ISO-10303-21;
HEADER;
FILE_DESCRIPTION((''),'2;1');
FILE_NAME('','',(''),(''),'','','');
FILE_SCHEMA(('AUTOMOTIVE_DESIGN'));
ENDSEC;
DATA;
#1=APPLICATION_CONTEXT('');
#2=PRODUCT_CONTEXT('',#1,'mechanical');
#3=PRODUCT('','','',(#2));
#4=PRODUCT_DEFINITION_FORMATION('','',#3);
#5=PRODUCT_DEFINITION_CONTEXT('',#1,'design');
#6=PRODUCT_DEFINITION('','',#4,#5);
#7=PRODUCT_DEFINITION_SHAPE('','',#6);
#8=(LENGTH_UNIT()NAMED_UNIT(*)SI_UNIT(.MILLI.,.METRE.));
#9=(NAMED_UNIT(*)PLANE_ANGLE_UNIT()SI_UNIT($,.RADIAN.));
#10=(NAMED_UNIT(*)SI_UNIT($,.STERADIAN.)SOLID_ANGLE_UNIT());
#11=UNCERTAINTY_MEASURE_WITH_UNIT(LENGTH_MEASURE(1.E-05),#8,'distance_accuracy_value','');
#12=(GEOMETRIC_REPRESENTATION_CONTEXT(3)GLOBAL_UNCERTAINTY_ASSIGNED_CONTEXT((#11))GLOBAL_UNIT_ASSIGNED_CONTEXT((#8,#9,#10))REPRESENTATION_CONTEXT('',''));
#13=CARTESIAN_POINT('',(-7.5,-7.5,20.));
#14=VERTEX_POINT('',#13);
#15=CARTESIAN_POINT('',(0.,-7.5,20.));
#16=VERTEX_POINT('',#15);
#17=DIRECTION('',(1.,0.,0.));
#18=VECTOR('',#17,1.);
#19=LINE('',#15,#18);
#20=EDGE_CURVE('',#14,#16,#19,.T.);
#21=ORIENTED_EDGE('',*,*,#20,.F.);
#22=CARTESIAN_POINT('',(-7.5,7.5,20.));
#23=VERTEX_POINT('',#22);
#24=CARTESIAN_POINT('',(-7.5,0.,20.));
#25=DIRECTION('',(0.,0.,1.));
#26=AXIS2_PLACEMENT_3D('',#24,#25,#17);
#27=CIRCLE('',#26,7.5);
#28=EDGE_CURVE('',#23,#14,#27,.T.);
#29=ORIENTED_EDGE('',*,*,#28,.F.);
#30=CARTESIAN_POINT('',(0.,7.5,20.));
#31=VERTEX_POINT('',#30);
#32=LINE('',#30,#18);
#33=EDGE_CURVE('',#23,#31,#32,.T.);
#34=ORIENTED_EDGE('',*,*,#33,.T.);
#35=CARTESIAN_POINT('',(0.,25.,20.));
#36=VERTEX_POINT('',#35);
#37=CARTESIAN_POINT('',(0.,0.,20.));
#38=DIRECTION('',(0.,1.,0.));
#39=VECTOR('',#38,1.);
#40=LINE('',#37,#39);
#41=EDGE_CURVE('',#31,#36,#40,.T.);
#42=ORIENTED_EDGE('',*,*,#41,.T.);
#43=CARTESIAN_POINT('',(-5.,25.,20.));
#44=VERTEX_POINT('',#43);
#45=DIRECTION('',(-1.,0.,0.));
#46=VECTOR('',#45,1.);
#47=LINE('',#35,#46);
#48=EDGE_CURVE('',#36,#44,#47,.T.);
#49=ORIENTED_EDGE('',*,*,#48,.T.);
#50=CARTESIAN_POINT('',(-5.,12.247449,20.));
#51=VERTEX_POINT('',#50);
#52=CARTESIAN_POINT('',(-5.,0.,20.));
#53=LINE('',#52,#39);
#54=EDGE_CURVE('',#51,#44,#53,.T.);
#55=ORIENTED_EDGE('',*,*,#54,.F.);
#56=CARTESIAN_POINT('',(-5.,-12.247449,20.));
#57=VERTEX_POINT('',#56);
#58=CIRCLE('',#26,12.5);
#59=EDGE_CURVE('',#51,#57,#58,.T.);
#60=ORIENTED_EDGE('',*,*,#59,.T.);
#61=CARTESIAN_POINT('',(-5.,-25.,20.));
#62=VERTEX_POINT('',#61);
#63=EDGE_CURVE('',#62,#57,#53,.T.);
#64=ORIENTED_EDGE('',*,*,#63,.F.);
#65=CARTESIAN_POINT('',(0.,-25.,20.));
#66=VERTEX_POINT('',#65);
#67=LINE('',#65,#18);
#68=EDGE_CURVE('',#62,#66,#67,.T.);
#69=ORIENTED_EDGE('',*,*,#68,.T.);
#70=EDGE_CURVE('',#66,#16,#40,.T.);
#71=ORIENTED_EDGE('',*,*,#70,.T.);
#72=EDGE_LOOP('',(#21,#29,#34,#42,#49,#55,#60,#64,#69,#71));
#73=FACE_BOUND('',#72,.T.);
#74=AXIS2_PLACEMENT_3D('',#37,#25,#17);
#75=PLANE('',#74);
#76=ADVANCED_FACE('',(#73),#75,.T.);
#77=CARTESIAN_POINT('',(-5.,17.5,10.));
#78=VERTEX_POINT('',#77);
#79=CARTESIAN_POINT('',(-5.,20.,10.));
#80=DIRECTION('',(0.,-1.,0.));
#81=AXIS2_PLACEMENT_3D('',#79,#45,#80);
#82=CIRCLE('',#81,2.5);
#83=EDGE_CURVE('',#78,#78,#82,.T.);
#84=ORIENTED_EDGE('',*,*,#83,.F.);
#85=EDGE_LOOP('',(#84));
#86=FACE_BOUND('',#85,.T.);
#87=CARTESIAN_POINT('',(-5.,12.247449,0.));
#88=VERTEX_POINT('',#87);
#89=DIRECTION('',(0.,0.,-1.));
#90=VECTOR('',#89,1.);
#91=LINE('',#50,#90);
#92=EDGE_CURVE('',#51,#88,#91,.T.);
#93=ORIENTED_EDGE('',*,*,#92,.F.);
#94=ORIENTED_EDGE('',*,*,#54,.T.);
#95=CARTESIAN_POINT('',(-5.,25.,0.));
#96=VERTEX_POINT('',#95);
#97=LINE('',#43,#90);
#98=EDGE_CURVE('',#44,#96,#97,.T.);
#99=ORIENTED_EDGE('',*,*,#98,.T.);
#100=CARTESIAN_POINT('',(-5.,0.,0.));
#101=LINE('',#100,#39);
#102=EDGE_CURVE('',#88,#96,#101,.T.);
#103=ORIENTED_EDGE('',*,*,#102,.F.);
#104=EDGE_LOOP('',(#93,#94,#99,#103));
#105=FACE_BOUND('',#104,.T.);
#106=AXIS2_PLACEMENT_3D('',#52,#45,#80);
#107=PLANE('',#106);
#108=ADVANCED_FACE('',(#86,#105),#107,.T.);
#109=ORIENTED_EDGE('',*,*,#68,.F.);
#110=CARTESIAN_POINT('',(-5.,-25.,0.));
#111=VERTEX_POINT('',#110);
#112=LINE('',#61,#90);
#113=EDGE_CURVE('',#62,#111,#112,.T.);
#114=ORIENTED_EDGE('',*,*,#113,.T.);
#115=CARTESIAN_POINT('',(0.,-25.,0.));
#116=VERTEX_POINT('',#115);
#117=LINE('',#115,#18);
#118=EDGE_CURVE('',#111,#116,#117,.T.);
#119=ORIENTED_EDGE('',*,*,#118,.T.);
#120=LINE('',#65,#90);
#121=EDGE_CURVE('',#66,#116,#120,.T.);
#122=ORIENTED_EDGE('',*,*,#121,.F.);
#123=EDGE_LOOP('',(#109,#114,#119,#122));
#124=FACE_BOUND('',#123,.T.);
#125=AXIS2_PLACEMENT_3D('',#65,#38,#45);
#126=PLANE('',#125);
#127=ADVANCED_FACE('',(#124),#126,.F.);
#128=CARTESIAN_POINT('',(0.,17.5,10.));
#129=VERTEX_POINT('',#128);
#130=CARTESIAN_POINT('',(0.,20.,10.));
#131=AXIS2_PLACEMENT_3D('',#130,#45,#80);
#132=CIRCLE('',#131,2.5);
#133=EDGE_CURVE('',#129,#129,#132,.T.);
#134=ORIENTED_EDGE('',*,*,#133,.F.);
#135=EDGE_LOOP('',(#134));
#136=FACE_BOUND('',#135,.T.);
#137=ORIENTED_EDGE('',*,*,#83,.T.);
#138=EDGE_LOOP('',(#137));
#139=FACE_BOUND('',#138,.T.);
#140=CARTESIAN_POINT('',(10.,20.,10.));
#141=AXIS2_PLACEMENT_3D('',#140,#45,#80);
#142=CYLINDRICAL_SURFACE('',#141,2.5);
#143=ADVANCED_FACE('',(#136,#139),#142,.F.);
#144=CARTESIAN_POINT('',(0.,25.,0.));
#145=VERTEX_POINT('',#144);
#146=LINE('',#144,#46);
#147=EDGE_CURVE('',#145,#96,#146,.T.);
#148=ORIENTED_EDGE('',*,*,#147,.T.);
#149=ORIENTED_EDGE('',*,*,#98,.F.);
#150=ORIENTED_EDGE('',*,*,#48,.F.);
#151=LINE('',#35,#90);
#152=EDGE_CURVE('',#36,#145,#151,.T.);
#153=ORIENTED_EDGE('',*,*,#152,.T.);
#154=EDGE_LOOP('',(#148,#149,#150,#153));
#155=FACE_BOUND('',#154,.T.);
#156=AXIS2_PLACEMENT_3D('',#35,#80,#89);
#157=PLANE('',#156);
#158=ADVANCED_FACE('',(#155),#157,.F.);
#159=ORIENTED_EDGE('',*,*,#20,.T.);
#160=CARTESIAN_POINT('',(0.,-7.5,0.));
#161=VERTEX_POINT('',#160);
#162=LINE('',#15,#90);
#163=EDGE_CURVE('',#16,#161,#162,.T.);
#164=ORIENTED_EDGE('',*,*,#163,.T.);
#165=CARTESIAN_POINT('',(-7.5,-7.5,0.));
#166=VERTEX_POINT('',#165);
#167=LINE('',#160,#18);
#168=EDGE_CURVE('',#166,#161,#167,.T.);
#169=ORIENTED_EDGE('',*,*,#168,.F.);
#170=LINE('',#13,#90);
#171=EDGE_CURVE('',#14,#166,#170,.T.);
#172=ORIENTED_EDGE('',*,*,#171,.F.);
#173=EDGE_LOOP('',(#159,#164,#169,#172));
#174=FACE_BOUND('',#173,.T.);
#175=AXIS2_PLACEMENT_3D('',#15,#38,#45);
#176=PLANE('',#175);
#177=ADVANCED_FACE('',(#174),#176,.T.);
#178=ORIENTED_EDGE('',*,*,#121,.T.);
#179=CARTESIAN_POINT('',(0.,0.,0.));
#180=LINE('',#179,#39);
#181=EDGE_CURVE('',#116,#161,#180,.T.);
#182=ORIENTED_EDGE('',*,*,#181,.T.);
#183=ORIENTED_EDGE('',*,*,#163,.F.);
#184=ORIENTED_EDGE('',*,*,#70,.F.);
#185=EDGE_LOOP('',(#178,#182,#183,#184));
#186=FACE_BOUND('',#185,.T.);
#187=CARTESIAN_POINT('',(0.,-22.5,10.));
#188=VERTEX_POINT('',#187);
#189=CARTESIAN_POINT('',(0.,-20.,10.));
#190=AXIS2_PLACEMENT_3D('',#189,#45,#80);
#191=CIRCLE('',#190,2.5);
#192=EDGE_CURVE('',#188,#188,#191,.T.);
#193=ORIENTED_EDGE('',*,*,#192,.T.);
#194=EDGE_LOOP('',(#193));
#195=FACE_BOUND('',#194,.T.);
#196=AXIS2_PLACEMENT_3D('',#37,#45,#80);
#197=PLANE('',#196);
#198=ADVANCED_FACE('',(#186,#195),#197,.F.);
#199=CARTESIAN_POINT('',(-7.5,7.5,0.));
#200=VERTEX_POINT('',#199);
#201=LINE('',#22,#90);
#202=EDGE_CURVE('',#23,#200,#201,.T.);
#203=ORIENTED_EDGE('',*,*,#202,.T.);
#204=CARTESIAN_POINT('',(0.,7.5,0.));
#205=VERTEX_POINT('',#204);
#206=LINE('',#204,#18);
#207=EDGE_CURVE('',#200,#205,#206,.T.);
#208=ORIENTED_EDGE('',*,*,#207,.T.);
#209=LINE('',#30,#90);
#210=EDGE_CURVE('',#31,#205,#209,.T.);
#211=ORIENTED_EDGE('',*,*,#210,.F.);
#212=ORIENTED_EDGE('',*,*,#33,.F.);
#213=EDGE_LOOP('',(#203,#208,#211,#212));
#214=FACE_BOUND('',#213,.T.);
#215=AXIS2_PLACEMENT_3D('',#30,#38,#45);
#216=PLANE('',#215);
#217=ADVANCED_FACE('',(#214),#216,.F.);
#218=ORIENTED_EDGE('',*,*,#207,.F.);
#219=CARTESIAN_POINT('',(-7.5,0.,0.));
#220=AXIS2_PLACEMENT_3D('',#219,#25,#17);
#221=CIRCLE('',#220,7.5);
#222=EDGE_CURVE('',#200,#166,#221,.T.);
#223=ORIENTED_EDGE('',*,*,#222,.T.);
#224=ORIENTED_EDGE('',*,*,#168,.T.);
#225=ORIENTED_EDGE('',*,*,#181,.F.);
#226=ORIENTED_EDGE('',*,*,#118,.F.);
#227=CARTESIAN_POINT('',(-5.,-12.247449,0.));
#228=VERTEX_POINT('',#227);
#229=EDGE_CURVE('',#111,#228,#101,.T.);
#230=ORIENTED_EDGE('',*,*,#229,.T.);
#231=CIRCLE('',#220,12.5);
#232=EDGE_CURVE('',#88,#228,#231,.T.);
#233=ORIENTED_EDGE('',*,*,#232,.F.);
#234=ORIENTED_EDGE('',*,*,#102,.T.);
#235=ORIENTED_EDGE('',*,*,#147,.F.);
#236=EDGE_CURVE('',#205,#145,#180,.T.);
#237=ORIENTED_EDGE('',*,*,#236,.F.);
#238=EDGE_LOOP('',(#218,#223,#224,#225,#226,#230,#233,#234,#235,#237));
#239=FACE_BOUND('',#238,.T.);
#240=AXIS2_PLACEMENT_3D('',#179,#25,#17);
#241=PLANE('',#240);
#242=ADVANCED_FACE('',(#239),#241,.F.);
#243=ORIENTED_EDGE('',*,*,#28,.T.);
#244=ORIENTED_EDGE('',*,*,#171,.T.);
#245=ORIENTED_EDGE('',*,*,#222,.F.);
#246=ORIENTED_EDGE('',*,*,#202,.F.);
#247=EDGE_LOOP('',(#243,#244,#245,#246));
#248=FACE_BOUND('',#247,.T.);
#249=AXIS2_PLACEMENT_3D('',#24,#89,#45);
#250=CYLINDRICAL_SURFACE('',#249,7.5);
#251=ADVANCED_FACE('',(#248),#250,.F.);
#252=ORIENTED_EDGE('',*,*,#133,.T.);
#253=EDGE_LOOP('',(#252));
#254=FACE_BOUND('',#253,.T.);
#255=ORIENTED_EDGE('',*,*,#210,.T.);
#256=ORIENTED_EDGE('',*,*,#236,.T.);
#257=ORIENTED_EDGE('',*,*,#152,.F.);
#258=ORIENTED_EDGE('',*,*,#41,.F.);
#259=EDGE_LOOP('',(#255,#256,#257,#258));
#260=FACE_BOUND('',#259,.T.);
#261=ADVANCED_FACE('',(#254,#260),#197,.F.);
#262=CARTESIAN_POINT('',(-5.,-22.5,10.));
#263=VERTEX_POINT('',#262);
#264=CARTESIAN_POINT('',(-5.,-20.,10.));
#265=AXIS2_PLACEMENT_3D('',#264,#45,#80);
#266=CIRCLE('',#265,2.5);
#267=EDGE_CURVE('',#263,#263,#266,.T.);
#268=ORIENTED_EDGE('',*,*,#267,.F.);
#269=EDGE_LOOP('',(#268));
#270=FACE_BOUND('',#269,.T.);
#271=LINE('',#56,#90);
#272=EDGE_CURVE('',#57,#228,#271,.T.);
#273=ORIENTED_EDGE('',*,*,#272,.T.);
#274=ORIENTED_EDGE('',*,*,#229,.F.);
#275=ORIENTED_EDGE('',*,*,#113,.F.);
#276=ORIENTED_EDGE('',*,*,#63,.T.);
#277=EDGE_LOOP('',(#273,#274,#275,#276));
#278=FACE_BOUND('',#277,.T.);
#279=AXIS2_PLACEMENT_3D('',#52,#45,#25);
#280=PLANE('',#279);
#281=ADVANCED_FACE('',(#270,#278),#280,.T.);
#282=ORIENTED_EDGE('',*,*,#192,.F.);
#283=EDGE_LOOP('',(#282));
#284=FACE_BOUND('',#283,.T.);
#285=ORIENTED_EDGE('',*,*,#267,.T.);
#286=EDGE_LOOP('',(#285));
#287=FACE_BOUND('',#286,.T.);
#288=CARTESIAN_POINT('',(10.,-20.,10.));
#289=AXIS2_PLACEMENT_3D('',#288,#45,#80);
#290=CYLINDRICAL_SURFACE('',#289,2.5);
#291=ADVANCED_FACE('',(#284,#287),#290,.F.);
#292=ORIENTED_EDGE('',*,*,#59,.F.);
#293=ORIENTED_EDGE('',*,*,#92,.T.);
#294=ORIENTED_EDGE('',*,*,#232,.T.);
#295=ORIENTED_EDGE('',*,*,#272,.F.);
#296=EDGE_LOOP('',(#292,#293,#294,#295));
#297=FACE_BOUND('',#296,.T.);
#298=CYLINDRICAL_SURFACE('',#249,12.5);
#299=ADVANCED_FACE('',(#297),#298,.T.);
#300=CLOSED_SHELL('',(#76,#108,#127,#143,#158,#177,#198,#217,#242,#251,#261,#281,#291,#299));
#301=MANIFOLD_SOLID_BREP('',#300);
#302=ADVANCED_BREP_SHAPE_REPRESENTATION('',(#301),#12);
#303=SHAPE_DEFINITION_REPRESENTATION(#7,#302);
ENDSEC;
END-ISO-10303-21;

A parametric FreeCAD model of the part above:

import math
import FreeCAD as App
import Part
import Sketcher

V = App.Vector
Q = App.Units.Quantity

doc = App.newDocument("Part")
params = doc.addObject("Spreadsheet::Sheet", "Params")
for row, (alias, value) in enumerate([
    ("sketch1_radius", "12.5 mm"),
    ("sketch1_radius2", "7.5 mm"),
    ("sketch1_width", "5 mm"),
    ("sketch1_width2", "7.5 mm"),
    ("sketch1_height", "17.5 mm"),
    ("pad1_length", "20 mm"),
    ("sketch2_diameter", "5 mm"),
    ("pocket1_length", "15 mm"),
], start=1):
    params.set(f"A{row}", alias)
    params.set(f"B{row}", "=" + value)
    params.setAlias(f"B{row}", alias)

body = doc.addObject("PartDesign::Body", "Body")

# Sketch on XY plane
sketch1 = doc.addObject("Sketcher::SketchObject", "Sketch")
body.addObject(sketch1)
sketch1.AttachmentSupport = (doc.XY_Plane, [""])
sketch1.MapMode = "FlatFace"
sketch1.addGeometry(Part.LineSegment(V(-5, 25, 0), V(-5, 12, 0)), False)
sketch1.addGeometry(Part.ArcOfCircle(Part.Circle(V(-8, 0, 0), V(0, 0, 1), 12), math.radians(78), math.radians(282)), False)
sketch1.addGeometry(Part.LineSegment(V(-5, -12, 0), V(-5, -25, 0)), False)
sketch1.addGeometry(Part.LineSegment(V(-5, -25, 0), V(0, -25, 0)), False)
sketch1.addGeometry(Part.LineSegment(V(0, -25, 0), V(0, -8, 0)), False)
sketch1.addGeometry(Part.LineSegment(V(0, -8, 0), V(-8, -8, 0)), False)
sketch1.addGeometry(Part.ArcOfCircle(Part.Circle(V(-8, 0, 0), V(0, 0, 1), 8), math.radians(90), math.radians(270)), False)
sketch1.addGeometry(Part.LineSegment(V(-8, 8, 0), V(0, 8, 0)), False)
sketch1.addGeometry(Part.LineSegment(V(0, 8, 0), V(0, 25, 0)), False)
sketch1.addGeometry(Part.LineSegment(V(0, 25, 0), V(-5, 25, 0)), False)
sketch1.addConstraint(Sketcher.Constraint("Coincident", 0, 2, 1, 1))
sketch1.addConstraint(Sketcher.Constraint("Coincident", 1, 2, 2, 1))
sketch1.addConstraint(Sketcher.Constraint("Coincident", 2, 2, 3, 1))
sketch1.addConstraint(Sketcher.Constraint("Coincident", 3, 2, 4, 1))
sketch1.addConstraint(Sketcher.Constraint("Coincident", 4, 2, 5, 1))
sketch1.addConstraint(Sketcher.Constraint("Tangent", 5, 2, 6, 2))
sketch1.addConstraint(Sketcher.Constraint("Tangent", 6, 1, 7, 1))
sketch1.addConstraint(Sketcher.Constraint("Coincident", 7, 2, 8, 1))
sketch1.addConstraint(Sketcher.Constraint("Coincident", 8, 2, 9, 1))
sketch1.addConstraint(Sketcher.Constraint("Coincident", 9, 2, 0, 1))
sketch1.addConstraint(Sketcher.Constraint("Vertical", 0))
sketch1.addConstraint(Sketcher.Constraint("Vertical", 2))
sketch1.addConstraint(Sketcher.Constraint("Horizontal", 3))
sketch1.addConstraint(Sketcher.Constraint("Vertical", 4))
sketch1.addConstraint(Sketcher.Constraint("Horizontal", 5))
sketch1.addConstraint(Sketcher.Constraint("Horizontal", 7))
sketch1.addConstraint(Sketcher.Constraint("Vertical", 8))
sketch1.addConstraint(Sketcher.Constraint("Horizontal", 9))
sketch1.addConstraint(Sketcher.Constraint("Coincident", 6, 3, 1, 3))
sketch1.addConstraint(Sketcher.Constraint("Symmetric", 4, 2, 7, 2, -1, 1))
sketch1.addConstraint(Sketcher.Constraint("Symmetric", 3, 2, 8, 2, -1))
sketch1.addConstraint(Sketcher.Constraint("Vertical", 0, 2, 1, 2))
sketch1.addConstraint(Sketcher.Constraint("Radius", 1, Q("12.5 mm")))
sketch1.addConstraint(Sketcher.Constraint("Radius", 6, Q("7.5 mm")))
sketch1.addConstraint(Sketcher.Constraint("DistanceX", 3, 1, 3, 2, Q("5 mm")))
sketch1.addConstraint(Sketcher.Constraint("DistanceX", 5, 2, 5, 1, Q("7.5 mm")))
sketch1.addConstraint(Sketcher.Constraint("DistanceY", 4, 1, 4, 2, Q("17.5 mm")))
sketch1.setExpression("Constraints[22]", "Params.sketch1_radius")
sketch1.setExpression("Constraints[23]", "Params.sketch1_radius2")
sketch1.setExpression("Constraints[24]", "Params.sketch1_width")
sketch1.setExpression("Constraints[25]", "Params.sketch1_width2")
sketch1.setExpression("Constraints[26]", "Params.sketch1_height")
pad1 = doc.addObject("PartDesign::Pad", "Pad")
body.addObject(pad1)
pad1.Profile = sketch1
pad1.setExpression("Length", "Params.pad1_length")

# Sketch on YZ plane
sketch2 = doc.addObject("Sketcher::SketchObject", "Sketch001")
body.addObject(sketch2)
sketch2.AttachmentSupport = (doc.YZ_Plane, [""])
sketch2.MapMode = "FlatFace"
sketch2.AttachmentOffset = App.Placement(V(0, 0, -5), App.Rotation())
sketch2.addGeometry(Part.Circle(V(20, 10, 0), V(0, 0, 1), 2.5), False)
sketch2.addGeometry(Part.Circle(V(-20, 10, 0), V(0, 0, 1), 2.5), False)
sketch2.addConstraint(Sketcher.Constraint("Equal", 0, 1))
sketch2.addConstraint(Sketcher.Constraint("Symmetric", 0, 3, 1, 3, -2))
sketch2.addConstraint(Sketcher.Constraint("Diameter", 0, Q("5 mm")))
sketch2.addConstraint(Sketcher.Constraint("DistanceX", -1, 1, 0, 3, Q("20 mm")))
sketch2.addConstraint(Sketcher.Constraint("DistanceY", -1, 1, 0, 3, Q("10 mm")))
sketch2.setExpression("Constraints[2]", "Params.sketch2_diameter")
pocket1 = doc.addObject("PartDesign::Pocket", "Pocket")
body.addObject(pocket1)
pocket1.Profile = sketch2
pocket1.setExpression("Length", "Params.pocket1_length")
pocket1.Reversed = True

doc.recompute()
